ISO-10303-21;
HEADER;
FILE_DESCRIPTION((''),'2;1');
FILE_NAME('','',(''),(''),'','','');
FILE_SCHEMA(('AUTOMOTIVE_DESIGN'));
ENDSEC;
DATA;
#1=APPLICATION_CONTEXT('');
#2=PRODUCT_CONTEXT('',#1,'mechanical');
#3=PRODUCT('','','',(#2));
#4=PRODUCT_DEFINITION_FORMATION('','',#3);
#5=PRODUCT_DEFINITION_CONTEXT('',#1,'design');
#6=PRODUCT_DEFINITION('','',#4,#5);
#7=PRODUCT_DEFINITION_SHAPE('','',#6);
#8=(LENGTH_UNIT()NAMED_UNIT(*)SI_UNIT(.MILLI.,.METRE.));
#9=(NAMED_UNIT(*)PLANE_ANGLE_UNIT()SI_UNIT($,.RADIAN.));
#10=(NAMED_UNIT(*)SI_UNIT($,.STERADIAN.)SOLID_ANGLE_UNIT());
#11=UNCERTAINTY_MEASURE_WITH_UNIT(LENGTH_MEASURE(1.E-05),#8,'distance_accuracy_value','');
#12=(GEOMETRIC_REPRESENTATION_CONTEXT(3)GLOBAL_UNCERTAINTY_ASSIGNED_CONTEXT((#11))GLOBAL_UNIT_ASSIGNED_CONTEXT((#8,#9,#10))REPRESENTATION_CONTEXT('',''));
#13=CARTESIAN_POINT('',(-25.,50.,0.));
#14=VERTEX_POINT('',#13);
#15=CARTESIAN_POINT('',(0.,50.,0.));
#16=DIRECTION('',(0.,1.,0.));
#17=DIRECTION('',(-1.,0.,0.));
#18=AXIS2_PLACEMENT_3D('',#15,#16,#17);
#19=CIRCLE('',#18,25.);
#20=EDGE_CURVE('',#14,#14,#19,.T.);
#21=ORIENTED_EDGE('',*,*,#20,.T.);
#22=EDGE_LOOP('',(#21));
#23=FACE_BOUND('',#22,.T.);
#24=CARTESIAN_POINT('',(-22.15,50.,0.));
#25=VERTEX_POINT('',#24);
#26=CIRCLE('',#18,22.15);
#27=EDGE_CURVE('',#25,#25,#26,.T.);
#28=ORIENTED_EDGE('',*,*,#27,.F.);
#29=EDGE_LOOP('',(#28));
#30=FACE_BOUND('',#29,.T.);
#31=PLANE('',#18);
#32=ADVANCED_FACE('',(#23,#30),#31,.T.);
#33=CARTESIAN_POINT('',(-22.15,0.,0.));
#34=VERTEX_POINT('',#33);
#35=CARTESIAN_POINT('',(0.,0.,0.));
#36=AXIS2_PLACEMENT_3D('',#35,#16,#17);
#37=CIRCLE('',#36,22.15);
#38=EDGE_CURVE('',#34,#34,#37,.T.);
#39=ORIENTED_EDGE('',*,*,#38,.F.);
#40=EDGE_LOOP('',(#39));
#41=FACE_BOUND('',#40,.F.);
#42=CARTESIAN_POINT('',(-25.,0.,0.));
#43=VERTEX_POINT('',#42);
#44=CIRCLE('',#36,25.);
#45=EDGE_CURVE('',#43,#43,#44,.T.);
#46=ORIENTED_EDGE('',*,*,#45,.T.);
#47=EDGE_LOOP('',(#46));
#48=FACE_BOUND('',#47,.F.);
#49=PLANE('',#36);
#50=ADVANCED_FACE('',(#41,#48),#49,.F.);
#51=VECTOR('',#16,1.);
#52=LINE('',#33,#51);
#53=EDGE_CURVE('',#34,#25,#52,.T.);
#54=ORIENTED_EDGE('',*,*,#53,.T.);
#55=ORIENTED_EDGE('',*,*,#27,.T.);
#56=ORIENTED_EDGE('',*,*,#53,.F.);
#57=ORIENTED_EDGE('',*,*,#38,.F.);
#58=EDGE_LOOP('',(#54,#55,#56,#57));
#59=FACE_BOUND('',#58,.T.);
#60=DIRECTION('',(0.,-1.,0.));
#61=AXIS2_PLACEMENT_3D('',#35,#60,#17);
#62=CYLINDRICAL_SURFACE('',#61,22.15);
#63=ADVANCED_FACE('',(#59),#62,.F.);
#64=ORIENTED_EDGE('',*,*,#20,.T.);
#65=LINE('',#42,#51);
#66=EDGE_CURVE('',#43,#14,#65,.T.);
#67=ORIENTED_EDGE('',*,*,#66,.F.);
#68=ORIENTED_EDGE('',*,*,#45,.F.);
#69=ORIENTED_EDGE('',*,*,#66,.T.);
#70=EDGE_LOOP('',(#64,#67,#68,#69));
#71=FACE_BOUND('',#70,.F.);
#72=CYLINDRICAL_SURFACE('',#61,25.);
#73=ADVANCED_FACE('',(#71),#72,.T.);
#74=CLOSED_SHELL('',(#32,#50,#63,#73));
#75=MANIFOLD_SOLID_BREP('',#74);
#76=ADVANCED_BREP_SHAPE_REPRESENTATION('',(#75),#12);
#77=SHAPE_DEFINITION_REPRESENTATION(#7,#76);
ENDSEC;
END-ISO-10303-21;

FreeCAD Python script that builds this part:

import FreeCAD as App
import Part
import Sketcher

V = App.Vector

doc = App.newDocument("Part")
body = doc.addObject("PartDesign::Body", "Body")

# Sketch on XZ plane
sketch1 = doc.addObject("Sketcher::SketchObject", "Sketch")
body.addObject(sketch1)
sketch1.AttachmentSupport = (doc.XZ_Plane, [""])
sketch1.MapMode = "FlatFace"
sketch1.addGeometry(Part.Circle(V(0, 0, 0), V(0, 0, 1), 25), False)
sketch1.addGeometry(Part.Circle(V(0, 0, 0), V(0, 0, 1), 22), False)
sketch1.addConstraint(Sketcher.Constraint("Coincident", 0, 3, -1, 1))
sketch1.addConstraint(Sketcher.Constraint("Coincident", 1, 3, -1, 1))
sketch1.addConstraint(Sketcher.Constraint("Diameter", 0, 50.0))
sketch1.addConstraint(Sketcher.Constraint("Diameter", 1, 44.3))
pad1 = doc.addObject("PartDesign::Pad", "Pad")
body.addObject(pad1)
pad1.Profile = sketch1
pad1.Length = 50
pad1.Reversed = True

doc.recompute()
